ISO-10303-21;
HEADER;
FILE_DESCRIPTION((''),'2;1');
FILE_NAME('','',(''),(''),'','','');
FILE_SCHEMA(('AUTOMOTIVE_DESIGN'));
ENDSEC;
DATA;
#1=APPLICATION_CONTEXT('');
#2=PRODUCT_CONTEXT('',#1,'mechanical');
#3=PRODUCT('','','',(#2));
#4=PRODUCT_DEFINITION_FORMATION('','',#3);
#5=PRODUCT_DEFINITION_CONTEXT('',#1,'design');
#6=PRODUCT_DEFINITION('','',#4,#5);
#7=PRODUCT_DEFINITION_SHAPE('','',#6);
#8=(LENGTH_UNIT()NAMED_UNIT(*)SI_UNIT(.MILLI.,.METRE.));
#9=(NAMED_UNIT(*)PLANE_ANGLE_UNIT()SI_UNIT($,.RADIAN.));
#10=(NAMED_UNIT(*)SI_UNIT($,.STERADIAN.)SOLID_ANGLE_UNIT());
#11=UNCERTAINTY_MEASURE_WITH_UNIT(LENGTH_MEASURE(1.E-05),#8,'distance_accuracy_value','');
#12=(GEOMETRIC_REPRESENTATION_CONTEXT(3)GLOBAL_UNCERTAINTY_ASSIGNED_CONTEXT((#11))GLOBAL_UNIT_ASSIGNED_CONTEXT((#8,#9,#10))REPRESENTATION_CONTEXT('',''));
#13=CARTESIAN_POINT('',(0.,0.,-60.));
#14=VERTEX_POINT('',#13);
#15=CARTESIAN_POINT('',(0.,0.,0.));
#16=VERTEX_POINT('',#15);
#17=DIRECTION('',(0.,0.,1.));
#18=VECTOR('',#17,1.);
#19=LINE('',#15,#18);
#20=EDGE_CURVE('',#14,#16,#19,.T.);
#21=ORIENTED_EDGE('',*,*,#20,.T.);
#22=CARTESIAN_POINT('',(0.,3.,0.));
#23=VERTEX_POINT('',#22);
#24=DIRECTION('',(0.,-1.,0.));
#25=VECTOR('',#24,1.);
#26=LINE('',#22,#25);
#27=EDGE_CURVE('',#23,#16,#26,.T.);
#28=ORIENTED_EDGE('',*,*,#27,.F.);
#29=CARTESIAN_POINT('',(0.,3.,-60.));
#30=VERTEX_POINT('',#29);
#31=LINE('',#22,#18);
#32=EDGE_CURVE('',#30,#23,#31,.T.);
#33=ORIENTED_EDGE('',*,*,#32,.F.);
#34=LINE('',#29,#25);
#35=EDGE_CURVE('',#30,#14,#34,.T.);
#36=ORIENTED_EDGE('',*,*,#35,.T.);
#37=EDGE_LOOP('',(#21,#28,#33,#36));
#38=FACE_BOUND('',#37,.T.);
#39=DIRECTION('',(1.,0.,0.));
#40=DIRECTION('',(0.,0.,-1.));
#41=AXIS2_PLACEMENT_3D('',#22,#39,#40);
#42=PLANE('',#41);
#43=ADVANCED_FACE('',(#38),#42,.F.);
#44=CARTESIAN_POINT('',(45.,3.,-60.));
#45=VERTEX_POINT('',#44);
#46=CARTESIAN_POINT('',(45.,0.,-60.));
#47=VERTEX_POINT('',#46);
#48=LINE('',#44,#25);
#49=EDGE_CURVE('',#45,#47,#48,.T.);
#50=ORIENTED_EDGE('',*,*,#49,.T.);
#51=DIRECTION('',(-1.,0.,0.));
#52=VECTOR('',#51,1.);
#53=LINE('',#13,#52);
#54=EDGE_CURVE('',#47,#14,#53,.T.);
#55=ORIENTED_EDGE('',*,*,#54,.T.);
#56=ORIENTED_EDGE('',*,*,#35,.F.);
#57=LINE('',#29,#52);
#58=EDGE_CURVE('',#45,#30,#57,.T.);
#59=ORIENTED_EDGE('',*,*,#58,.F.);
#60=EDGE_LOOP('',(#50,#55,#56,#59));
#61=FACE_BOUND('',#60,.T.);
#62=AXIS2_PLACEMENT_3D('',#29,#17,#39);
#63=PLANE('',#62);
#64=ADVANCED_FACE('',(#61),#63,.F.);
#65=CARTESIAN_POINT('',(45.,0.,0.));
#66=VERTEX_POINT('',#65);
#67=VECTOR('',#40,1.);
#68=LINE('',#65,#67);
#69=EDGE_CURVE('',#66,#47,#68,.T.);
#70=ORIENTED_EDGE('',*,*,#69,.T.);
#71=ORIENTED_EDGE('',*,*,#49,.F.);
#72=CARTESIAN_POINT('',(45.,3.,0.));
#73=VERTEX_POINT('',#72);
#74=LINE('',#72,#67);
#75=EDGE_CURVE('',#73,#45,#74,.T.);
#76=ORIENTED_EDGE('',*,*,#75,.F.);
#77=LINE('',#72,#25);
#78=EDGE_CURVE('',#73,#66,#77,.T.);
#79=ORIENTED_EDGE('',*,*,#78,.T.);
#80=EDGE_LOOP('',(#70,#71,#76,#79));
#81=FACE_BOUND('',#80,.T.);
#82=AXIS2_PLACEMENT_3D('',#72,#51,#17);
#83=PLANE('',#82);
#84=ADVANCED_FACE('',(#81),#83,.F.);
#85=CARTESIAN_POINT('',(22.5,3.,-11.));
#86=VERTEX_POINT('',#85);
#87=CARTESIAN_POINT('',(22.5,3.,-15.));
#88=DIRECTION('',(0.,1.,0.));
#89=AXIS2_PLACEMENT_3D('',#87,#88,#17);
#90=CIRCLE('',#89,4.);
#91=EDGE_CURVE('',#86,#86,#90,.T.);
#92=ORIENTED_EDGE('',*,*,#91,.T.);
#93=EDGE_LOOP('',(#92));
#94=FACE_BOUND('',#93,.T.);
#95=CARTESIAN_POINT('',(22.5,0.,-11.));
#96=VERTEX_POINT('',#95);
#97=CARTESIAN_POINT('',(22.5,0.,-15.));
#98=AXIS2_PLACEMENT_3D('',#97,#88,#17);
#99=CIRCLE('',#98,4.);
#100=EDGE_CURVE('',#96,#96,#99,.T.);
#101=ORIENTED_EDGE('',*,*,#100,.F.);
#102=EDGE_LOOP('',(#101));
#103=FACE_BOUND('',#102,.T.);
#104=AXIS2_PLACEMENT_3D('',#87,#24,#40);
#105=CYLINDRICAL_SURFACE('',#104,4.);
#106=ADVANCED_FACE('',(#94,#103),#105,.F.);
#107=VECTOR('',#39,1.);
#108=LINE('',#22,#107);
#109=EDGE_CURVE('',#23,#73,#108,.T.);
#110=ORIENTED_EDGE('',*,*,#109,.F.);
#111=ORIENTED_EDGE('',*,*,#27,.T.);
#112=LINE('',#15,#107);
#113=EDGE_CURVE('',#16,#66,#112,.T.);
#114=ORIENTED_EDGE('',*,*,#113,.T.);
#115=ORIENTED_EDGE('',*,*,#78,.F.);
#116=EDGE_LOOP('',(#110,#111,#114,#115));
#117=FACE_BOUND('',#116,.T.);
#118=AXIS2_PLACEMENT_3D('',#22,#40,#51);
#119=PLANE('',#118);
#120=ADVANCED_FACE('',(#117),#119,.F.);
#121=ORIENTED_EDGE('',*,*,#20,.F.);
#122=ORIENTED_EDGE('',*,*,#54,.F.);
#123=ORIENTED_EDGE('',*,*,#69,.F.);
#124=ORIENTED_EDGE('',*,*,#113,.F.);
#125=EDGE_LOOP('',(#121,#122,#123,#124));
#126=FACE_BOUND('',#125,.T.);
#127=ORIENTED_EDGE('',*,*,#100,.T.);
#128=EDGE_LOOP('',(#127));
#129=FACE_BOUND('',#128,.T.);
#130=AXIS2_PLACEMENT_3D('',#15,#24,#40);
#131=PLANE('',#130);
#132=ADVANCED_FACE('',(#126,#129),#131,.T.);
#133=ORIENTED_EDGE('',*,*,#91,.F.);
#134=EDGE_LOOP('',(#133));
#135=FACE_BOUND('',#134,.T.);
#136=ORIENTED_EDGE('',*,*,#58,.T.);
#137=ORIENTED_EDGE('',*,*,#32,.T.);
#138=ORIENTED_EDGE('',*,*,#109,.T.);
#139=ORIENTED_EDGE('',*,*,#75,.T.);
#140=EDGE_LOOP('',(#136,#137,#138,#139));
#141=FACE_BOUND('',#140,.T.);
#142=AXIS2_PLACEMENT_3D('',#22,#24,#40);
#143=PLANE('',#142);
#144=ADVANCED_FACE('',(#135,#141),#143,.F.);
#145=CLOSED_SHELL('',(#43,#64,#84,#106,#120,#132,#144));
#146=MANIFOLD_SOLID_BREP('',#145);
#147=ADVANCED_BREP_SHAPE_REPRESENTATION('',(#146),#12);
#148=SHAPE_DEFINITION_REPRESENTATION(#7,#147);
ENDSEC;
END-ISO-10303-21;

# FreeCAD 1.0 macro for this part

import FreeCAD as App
import Part
import Sketcher


def add_polygon(sketch, points):
    """Adds a closed chain of lines whose ends are joined by coincident constraints."""
    first, n = sketch.GeometryCount, len(points)
    for a, b in zip(points, points[1:] + points[:1]):
        sketch.addGeometry(Part.LineSegment(App.Vector(*a, 0), App.Vector(*b, 0)), False)
    for i in range(n):
        sketch.addConstraint(Sketcher.Constraint("Coincident", first + i, 2, first + (i + 1) % n, 1))

doc = App.newDocument("Part")
body = doc.addObject("PartDesign::Body", "Body")

# Sketch on XZ plane
sketch1 = body.newObject("Sketcher::SketchObject", "Sketch")
sketch1.AttachmentSupport = (doc.getObject("XZ_Plane"), [""])
sketch1.MapMode = "FlatFace"
add_polygon(sketch1, [(0, -60), (0, 0), (45, 0), (45, -60)])  # lines 0-3
sketch1.addGeometry(Part.Circle(App.Vector(22.5, -15, 0), App.Vector(0, 0, 1), 4), False)  # 4
sketch1.addConstraint([
    Sketcher.Constraint("Vertical", 0),
    Sketcher.Constraint("Horizontal", 1),
    Sketcher.Constraint("Vertical", 2),
    Sketcher.Constraint("Horizontal", 3),
    Sketcher.Constraint("Coincident", 0, 2, -1, 1),
    Sketcher.Constraint("Diameter", 4, 8.0),
    Sketcher.Constraint("DistanceX", 1, 1, 1, 2, 45.0),
    Sketcher.Constraint("DistanceY", 0, 1, 0, 2, 60.0),
    Sketcher.Constraint("DistanceY", 4, 3, -1, 1, 15.0),
    Sketcher.Constraint("DistanceX", -1, 1, 4, 3, 22.5),
])
pad1 = body.newObject("PartDesign::Pad", "Pad")
pad1.Profile = sketch1
pad1.Length = 3
pad1.Reversed = True

doc.recompute()
